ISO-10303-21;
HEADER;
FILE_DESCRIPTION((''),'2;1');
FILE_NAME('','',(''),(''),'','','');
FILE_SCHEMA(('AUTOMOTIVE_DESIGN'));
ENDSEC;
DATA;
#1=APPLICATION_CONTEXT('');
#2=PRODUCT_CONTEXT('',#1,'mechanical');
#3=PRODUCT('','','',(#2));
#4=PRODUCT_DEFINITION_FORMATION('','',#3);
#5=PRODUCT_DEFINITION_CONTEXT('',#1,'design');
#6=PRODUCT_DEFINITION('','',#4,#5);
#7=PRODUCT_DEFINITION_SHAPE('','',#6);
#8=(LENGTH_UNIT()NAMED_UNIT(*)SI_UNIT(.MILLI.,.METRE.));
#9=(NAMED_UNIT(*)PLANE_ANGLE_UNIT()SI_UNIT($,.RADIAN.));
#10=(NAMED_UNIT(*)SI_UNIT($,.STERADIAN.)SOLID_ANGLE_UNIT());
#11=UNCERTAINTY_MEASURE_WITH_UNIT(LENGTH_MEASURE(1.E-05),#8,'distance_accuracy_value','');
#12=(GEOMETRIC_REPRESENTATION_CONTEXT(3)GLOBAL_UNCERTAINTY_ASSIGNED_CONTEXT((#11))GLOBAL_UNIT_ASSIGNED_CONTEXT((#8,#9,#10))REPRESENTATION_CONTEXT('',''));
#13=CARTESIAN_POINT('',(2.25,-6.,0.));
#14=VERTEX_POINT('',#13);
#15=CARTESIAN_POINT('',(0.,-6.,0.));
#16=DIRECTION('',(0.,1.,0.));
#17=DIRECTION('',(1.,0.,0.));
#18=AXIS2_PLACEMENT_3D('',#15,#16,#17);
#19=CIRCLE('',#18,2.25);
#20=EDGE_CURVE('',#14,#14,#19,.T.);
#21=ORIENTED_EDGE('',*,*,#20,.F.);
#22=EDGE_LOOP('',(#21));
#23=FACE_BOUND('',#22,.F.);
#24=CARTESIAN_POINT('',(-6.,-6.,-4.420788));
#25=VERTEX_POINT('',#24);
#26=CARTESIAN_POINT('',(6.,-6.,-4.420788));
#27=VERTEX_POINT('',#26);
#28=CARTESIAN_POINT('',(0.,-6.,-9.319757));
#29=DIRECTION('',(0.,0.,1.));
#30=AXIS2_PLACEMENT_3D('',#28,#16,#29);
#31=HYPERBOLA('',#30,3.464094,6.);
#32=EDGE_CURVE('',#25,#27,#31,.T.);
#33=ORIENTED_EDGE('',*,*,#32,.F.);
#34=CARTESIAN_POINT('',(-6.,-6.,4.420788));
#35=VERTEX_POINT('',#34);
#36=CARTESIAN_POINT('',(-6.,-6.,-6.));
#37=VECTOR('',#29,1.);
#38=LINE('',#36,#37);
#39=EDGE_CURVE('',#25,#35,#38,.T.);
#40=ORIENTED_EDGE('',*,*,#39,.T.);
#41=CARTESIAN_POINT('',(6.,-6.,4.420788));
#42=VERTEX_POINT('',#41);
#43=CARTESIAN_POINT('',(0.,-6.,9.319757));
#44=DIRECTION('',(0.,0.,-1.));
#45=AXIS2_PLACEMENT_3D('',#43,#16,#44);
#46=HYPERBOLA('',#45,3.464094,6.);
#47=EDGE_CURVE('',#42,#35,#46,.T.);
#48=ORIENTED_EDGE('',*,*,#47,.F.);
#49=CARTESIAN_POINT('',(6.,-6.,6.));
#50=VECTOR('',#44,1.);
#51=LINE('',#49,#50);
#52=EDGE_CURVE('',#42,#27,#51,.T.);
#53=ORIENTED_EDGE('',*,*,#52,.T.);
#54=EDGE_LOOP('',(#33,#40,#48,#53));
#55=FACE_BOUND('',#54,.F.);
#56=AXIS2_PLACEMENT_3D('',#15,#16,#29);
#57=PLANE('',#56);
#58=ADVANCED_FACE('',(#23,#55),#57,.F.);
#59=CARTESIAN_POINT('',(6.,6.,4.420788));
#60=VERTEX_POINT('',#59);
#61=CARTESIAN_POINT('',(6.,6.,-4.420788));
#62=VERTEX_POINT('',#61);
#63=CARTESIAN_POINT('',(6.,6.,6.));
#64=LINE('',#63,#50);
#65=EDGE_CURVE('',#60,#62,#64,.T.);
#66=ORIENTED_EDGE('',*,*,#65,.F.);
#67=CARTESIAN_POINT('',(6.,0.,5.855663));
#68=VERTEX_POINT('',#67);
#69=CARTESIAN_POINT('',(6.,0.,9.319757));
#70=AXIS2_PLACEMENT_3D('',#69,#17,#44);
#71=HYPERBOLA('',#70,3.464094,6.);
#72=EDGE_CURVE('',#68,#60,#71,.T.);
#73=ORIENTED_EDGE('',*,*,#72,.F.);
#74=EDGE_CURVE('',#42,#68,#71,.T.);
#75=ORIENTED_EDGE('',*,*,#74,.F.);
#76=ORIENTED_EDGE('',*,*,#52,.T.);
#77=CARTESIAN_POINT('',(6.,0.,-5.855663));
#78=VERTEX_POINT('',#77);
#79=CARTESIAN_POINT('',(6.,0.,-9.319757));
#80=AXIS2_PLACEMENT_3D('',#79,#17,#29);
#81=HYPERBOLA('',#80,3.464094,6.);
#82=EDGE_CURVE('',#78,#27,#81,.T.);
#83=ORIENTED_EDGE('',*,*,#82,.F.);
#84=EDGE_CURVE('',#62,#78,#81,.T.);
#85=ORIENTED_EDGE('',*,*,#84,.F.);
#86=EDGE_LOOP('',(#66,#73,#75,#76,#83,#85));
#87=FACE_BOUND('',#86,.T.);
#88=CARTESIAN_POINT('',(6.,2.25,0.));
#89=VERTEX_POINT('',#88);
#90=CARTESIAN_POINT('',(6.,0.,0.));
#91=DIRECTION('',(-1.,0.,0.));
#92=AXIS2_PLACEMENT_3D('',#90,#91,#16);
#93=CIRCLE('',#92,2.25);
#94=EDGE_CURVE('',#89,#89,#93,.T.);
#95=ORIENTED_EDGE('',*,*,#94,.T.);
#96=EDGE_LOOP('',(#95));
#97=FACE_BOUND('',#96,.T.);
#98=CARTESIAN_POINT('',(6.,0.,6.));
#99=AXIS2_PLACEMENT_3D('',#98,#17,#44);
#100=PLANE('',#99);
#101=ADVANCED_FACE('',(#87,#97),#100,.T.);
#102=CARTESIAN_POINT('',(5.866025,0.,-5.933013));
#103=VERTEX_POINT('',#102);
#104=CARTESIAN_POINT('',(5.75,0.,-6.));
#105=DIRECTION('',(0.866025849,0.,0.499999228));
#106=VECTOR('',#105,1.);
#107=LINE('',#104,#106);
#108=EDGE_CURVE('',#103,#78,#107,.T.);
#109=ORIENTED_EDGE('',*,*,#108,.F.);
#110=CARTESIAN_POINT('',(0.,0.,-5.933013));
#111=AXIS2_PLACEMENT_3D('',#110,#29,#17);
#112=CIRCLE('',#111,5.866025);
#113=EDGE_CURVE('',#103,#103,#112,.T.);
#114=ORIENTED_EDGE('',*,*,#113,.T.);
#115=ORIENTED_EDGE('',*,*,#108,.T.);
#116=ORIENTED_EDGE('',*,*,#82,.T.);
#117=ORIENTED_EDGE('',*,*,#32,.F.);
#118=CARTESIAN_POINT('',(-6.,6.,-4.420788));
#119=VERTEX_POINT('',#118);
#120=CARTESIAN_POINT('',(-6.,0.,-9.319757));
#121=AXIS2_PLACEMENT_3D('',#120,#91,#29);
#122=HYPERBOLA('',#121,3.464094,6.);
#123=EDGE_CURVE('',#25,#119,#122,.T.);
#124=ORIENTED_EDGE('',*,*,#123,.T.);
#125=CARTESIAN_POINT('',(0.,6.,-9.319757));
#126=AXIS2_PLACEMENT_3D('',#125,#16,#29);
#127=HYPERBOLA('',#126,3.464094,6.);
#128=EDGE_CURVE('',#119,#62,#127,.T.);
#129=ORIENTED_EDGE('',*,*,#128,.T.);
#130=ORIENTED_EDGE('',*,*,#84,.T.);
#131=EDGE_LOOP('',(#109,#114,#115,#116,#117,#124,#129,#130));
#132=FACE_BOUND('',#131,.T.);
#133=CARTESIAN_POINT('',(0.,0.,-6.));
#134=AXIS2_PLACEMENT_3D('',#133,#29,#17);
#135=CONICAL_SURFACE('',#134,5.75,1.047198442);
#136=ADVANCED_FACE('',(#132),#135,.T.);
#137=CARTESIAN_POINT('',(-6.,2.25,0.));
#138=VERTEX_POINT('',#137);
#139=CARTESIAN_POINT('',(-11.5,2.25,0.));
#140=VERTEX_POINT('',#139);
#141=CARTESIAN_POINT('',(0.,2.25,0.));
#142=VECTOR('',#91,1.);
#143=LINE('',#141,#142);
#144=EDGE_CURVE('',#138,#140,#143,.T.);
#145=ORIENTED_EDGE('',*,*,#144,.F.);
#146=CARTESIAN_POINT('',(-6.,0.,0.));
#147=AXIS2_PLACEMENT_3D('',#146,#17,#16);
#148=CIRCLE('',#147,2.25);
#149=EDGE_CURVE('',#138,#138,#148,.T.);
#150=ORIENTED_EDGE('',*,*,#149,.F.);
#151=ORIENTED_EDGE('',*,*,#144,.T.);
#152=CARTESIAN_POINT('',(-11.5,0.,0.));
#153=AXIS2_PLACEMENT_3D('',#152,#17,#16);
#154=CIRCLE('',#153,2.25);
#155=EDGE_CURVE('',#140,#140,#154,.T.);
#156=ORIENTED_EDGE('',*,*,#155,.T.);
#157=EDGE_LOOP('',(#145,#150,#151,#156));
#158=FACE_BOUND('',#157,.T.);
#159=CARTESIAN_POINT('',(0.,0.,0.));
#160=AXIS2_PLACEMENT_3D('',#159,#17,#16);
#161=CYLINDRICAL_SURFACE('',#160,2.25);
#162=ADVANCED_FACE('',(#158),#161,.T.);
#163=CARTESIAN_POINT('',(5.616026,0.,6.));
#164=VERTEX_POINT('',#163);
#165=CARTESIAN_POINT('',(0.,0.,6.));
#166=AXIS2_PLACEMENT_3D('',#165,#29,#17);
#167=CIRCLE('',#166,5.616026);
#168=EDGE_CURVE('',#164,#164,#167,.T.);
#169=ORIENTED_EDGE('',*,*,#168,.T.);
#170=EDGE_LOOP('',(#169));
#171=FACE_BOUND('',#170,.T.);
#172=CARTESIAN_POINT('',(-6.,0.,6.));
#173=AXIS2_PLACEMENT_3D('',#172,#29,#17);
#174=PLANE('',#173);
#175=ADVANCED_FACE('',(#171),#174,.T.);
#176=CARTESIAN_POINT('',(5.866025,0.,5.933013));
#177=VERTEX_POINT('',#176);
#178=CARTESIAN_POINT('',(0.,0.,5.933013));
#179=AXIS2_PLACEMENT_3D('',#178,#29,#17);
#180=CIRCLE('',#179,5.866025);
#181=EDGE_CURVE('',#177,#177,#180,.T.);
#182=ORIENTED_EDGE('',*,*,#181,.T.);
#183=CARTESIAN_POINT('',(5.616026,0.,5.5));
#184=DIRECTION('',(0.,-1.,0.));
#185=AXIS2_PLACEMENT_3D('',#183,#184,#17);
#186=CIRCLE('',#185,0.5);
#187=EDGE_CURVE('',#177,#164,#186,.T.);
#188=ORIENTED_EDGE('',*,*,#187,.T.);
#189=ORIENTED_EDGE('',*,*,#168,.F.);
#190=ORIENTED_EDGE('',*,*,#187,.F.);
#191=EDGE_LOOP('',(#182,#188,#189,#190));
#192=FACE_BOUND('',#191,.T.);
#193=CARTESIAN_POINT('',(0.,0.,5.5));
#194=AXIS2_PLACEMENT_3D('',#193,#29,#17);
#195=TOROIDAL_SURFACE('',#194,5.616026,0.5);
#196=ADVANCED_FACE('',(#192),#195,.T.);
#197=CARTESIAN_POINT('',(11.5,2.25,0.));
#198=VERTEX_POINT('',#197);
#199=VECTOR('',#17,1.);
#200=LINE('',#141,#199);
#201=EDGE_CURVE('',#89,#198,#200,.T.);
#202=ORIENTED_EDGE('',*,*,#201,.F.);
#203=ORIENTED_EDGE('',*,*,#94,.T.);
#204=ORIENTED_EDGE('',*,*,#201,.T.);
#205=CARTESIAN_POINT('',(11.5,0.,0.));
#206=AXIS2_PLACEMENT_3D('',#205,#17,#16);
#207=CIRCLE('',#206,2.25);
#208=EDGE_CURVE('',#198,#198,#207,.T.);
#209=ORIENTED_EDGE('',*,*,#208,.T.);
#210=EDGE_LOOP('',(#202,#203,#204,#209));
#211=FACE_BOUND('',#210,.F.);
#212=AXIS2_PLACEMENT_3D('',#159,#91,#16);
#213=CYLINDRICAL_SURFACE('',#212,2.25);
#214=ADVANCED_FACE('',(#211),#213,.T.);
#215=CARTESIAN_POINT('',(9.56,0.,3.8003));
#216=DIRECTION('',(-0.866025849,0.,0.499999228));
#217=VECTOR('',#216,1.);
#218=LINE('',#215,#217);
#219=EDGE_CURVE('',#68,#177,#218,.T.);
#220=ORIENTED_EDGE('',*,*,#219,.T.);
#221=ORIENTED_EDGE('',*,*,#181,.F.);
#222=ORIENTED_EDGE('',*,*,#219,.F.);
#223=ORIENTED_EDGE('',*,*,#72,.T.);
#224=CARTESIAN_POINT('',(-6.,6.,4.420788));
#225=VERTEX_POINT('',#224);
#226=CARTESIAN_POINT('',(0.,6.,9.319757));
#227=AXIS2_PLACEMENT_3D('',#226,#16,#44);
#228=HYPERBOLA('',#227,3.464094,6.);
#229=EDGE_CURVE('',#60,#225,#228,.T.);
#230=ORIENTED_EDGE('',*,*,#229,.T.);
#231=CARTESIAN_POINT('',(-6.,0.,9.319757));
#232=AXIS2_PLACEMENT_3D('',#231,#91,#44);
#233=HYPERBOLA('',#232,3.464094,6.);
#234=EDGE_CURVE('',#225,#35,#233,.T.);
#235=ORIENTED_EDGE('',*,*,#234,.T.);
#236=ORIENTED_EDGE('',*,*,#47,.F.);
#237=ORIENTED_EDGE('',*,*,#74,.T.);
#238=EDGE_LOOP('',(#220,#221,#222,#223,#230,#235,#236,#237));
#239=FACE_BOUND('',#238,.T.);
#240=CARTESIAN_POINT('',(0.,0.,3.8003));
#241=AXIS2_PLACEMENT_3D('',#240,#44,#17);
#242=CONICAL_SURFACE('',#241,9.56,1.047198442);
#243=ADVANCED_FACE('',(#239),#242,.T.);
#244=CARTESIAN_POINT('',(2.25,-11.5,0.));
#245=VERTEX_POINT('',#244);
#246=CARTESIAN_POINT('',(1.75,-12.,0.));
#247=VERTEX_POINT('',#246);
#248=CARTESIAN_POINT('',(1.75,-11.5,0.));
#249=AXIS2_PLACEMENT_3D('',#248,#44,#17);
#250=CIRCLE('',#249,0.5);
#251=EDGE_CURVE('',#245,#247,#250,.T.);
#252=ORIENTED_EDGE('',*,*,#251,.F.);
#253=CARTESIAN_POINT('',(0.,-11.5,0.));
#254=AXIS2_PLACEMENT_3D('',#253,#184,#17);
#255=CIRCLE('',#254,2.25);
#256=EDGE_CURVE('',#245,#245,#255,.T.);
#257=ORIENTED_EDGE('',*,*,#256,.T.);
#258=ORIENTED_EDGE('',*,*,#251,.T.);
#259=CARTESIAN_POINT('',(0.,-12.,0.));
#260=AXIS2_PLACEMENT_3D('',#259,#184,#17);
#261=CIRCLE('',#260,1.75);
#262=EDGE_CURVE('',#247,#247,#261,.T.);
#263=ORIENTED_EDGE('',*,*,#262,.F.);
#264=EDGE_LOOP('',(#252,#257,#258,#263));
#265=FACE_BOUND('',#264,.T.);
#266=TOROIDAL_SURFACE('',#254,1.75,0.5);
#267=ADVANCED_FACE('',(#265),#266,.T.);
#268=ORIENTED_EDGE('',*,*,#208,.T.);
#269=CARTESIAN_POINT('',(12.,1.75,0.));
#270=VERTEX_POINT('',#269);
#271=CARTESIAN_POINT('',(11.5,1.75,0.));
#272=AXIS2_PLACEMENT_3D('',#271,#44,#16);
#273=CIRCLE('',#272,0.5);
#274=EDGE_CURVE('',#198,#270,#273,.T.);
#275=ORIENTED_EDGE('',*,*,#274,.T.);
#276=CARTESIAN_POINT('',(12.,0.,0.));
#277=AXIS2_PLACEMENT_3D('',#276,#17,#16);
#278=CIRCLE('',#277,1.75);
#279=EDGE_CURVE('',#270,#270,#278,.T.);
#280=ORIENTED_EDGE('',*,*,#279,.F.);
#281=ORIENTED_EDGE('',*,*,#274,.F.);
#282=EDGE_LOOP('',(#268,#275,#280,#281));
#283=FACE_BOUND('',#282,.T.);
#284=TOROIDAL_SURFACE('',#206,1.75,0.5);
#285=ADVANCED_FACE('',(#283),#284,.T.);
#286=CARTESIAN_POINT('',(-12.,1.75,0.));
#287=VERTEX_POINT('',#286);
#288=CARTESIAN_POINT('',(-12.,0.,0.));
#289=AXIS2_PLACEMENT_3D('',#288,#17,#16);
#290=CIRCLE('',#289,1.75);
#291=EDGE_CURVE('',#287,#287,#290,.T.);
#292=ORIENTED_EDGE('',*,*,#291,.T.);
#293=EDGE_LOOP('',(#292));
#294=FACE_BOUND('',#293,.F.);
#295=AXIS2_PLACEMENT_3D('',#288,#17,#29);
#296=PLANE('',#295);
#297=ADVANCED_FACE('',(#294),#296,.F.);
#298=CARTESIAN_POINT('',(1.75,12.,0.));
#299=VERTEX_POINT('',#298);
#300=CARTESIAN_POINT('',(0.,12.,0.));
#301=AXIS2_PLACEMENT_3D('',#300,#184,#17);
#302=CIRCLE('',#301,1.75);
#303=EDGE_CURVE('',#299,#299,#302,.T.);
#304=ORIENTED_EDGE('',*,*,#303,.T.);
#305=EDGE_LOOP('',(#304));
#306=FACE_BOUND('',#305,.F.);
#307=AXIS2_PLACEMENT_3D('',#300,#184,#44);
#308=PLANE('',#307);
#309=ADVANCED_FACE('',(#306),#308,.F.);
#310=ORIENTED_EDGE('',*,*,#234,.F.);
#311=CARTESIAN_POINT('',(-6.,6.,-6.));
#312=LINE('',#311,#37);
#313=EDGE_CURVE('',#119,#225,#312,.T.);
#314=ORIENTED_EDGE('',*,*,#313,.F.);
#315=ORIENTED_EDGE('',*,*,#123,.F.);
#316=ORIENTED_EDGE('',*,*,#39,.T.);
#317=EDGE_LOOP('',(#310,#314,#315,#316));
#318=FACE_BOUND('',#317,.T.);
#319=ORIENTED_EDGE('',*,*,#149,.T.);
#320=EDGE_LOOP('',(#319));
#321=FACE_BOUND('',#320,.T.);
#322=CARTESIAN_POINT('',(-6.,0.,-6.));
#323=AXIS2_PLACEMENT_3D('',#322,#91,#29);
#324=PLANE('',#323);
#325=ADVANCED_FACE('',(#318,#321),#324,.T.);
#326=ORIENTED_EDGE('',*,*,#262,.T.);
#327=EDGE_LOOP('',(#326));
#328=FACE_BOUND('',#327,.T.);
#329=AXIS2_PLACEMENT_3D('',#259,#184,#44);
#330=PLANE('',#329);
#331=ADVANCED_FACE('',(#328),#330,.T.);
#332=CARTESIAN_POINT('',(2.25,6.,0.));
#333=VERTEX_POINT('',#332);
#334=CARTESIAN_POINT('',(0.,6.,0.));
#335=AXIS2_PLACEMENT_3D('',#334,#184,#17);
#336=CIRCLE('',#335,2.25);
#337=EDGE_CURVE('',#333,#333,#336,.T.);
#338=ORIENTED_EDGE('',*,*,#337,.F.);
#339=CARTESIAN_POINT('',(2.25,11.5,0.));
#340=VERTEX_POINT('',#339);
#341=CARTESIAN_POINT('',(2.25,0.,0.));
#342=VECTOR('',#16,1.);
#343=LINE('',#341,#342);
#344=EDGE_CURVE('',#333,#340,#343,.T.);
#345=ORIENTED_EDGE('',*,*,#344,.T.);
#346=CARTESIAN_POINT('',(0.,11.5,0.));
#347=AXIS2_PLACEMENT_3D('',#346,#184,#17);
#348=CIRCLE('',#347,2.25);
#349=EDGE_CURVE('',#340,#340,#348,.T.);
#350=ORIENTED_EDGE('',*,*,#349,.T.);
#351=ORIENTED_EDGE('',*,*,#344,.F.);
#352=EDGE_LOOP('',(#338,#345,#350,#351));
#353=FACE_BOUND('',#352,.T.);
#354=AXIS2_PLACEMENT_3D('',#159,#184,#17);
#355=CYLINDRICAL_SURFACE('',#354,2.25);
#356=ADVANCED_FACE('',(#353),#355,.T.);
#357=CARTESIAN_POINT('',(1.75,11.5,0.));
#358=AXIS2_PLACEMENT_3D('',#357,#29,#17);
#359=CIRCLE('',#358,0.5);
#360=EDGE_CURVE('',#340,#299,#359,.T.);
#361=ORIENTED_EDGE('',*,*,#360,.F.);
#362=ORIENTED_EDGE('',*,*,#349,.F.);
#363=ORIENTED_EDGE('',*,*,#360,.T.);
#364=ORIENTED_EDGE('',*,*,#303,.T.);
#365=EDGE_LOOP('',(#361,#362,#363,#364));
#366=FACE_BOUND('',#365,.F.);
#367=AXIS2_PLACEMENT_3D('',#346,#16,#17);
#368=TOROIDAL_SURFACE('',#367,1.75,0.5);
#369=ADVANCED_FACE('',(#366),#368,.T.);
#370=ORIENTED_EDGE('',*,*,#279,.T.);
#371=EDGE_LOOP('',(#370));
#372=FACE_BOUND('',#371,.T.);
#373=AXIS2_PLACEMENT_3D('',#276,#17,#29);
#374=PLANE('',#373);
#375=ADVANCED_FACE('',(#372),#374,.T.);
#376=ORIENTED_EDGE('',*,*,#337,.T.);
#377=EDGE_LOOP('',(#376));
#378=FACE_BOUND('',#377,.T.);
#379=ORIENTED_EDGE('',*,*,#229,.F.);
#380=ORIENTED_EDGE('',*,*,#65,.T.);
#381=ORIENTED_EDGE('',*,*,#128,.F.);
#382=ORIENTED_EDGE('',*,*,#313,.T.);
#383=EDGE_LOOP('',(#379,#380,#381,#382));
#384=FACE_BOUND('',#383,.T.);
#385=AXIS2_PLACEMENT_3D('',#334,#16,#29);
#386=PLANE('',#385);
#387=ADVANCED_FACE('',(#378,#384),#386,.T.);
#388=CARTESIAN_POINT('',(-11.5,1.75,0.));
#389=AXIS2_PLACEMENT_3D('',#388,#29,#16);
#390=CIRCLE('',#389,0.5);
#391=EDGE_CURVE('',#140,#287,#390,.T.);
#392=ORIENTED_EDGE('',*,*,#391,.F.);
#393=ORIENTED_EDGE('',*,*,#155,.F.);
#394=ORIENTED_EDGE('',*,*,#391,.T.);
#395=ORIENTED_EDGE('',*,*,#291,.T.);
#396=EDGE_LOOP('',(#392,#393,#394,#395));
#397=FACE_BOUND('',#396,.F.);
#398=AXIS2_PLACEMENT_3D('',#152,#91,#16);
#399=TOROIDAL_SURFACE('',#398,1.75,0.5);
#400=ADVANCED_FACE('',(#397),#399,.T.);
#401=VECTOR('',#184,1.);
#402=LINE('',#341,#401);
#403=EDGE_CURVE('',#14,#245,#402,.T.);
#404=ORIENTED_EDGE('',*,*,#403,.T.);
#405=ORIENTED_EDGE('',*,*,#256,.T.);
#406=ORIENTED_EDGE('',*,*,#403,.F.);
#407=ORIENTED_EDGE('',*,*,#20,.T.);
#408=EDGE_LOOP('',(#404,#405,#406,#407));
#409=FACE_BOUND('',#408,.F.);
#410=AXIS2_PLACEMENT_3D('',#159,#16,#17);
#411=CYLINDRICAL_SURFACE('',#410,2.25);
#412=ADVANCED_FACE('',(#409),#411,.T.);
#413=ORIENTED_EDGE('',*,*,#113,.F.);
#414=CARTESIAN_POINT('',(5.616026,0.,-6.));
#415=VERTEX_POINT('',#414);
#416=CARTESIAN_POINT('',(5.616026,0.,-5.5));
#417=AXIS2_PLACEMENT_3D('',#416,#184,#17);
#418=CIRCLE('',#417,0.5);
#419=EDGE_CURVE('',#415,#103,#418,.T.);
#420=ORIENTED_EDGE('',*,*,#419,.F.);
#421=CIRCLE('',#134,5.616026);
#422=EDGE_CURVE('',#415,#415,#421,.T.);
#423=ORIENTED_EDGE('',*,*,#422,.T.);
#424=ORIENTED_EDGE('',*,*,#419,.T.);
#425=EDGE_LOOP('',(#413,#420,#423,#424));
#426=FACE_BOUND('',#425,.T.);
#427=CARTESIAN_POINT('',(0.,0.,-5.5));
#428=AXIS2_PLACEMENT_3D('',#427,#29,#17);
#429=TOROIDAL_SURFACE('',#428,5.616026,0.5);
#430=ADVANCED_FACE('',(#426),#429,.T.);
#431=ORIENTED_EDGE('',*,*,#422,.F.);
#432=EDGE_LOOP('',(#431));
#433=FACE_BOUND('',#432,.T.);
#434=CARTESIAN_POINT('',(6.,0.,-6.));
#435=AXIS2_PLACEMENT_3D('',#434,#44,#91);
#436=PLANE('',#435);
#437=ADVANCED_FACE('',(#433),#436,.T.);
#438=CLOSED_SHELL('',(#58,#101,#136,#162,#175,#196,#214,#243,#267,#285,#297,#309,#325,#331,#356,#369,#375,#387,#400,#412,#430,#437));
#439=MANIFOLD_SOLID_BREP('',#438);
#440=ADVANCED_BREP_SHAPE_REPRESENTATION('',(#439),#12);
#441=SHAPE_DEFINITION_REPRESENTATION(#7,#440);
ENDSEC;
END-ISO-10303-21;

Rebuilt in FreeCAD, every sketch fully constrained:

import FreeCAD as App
import Part
import Sketcher
Q = App.Units.Quantity


def edges_at(feature, points):
    """Names of the edges that pass closest to the given points."""
    edges = feature.Shape.Edges
    near = lambda p: min(range(len(edges)), key=lambda i: edges[i].distToShape(Part.Vertex(*p))[0])
    return sorted({f"Edge{near(p) + 1}" for p in points})


def add_polygon(sketch, points):
    """Adds a closed chain of lines whose ends are joined by coincident constraints."""
    first, n = sketch.GeometryCount, len(points)
    for a, b in zip(points, points[1:] + points[:1]):
        sketch.addGeometry(Part.LineSegment(App.Vector(*a, 0), App.Vector(*b, 0)), False)
    for i in range(n):
        sketch.addConstraint(Sketcher.Constraint("Coincident", first + i, 2, first + (i + 1) % n, 1))

doc = App.newDocument("Part")
body = doc.addObject("PartDesign::Body", "Body")

# Sketch on XZ plane
sketch1 = doc.addObject("Sketcher::SketchObject", "Sketch")
body.addObject(sketch1)
sketch1.AttachmentSupport = (doc.XZ_Plane, [""])
sketch1.MapMode = "FlatFace"
add_polygon(sketch1, [(-6, -6), (6, -6), (6, 6), (-6, 6)])  # lines 0-3
sketch1.addConstraint(Sketcher.Constraint("Horizontal", 0))
sketch1.addConstraint(Sketcher.Constraint("Vertical", 1))
sketch1.addConstraint(Sketcher.Constraint("Horizontal", 2))
sketch1.addConstraint(Sketcher.Constraint("Vertical", 3))
sketch1.addConstraint(Sketcher.Constraint("Symmetric", 0, 2, 2, 2, -1, 1))
sketch1.addConstraint(Sketcher.Constraint("Equal", 2, 1))
sketch1.addConstraint(Sketcher.Constraint("DistanceX", -1, 1, 0, 2, 6.0))
pad1 = doc.addObject("PartDesign::Pad", "Pad")
body.addObject(pad1)
pad1.Profile = sketch1
pad1.Length = 12
pad1.Midplane = True

# Sketch on XZ plane
sketch2 = doc.addObject("Sketcher::SketchObject", "Sketch001")
body.addObject(sketch2)
sketch2.AttachmentSupport = (doc.XZ_Plane, [""])
sketch2.MapMode = "FlatFace"
add_polygon(sketch2, [(5.8, 6), (9.6, 3.8), (9.6, -3.8), (5.8, -6), (12.1, -6), (12.1, 6)])  # lines 0-5
sketch2.addConstraint(Sketcher.Constraint("Vertical", 1))
sketch2.addConstraint(Sketcher.Constraint("Horizontal", 3))
sketch2.addConstraint(Sketcher.Constraint("Vertical", 4))
sketch2.addConstraint(Sketcher.Constraint("Horizontal", 5))
sketch2.addConstraint(Sketcher.Constraint("Symmetric", 2, 2, 5, 2, -1))
sketch2.addConstraint(Sketcher.Constraint("Equal", 0, 2))
sketch2.addConstraint(Sketcher.Constraint("DistanceY", 4, 1, 4, 2, 12.0))
sketch2.addConstraint(Sketcher.Constraint("Angle", 0, Q("-30 deg")))
sketch2.addConstraint(Sketcher.Constraint("DistanceX", 3, 1, 3, 2, 6.35))
sketch2.addConstraint(Sketcher.Constraint("DistanceX", -1, 1, 3, 2, 12.1))
sketch2.addConstraint(Sketcher.Constraint("DistanceX", -1, 1, 0, 2, 9.56))
groove = doc.addObject("PartDesign::Groove", "Groove")
body.addObject(groove)
groove.Profile = sketch2
groove.ReferenceAxis = (sketch2, ["V_Axis"])
groove.Angle = 360

# Sketch on YZ plane
sketch3 = doc.addObject("Sketcher::SketchObject", "Sketch002")
body.addObject(sketch3)
sketch3.AttachmentSupport = (doc.YZ_Plane, [""])
sketch3.MapMode = "FlatFace"
sketch3.addGeometry(Part.Circle(App.Vector(0, 0, 0), App.Vector(0, 0, 1), 2.2), False)
sketch3.addConstraint(Sketcher.Constraint("Coincident", 0, 3, -1, 1))
sketch3.addConstraint(Sketcher.Constraint("Diameter", 0, 4.5))
pad2 = doc.addObject("PartDesign::Pad", "Pad001")
body.addObject(pad2)
pad2.Profile = sketch3
pad2.Length = 24
pad2.Midplane = True

# Sketch on XZ plane
sketch4 = doc.addObject("Sketcher::SketchObject", "Sketch003")
body.addObject(sketch4)
sketch4.AttachmentSupport = (doc.XZ_Plane, [""])
sketch4.MapMode = "FlatFace"
sketch4.addGeometry(Part.Circle(App.Vector(0, 0, 0), App.Vector(0, 0, 1), 2.2), False)
sketch4.addConstraint(Sketcher.Constraint("Coincident", 0, 3, -1, 1))
sketch4.addConstraint(Sketcher.Constraint("Diameter", 0, 4.5))
pad3 = doc.addObject("PartDesign::Pad", "Pad002")
body.addObject(pad3)
pad3.Profile = sketch4
pad3.Length = 24
pad3.Midplane = True
doc.recompute()

fillet = doc.addObject("PartDesign::Fillet", "Fillet")
body.addObject(fillet)
fillet.Base = (pad3, edges_at(pad3, [
    (-2.25, -12, 0),
    (12, -2.25, 0),
    (-2.25, 12, 0),
    (-12, -2.25, 0),
    (-5.75, 0, 6),
    (-5.75, 0, -6),
]))
fillet.Radius = 0.5

doc.recompute()
